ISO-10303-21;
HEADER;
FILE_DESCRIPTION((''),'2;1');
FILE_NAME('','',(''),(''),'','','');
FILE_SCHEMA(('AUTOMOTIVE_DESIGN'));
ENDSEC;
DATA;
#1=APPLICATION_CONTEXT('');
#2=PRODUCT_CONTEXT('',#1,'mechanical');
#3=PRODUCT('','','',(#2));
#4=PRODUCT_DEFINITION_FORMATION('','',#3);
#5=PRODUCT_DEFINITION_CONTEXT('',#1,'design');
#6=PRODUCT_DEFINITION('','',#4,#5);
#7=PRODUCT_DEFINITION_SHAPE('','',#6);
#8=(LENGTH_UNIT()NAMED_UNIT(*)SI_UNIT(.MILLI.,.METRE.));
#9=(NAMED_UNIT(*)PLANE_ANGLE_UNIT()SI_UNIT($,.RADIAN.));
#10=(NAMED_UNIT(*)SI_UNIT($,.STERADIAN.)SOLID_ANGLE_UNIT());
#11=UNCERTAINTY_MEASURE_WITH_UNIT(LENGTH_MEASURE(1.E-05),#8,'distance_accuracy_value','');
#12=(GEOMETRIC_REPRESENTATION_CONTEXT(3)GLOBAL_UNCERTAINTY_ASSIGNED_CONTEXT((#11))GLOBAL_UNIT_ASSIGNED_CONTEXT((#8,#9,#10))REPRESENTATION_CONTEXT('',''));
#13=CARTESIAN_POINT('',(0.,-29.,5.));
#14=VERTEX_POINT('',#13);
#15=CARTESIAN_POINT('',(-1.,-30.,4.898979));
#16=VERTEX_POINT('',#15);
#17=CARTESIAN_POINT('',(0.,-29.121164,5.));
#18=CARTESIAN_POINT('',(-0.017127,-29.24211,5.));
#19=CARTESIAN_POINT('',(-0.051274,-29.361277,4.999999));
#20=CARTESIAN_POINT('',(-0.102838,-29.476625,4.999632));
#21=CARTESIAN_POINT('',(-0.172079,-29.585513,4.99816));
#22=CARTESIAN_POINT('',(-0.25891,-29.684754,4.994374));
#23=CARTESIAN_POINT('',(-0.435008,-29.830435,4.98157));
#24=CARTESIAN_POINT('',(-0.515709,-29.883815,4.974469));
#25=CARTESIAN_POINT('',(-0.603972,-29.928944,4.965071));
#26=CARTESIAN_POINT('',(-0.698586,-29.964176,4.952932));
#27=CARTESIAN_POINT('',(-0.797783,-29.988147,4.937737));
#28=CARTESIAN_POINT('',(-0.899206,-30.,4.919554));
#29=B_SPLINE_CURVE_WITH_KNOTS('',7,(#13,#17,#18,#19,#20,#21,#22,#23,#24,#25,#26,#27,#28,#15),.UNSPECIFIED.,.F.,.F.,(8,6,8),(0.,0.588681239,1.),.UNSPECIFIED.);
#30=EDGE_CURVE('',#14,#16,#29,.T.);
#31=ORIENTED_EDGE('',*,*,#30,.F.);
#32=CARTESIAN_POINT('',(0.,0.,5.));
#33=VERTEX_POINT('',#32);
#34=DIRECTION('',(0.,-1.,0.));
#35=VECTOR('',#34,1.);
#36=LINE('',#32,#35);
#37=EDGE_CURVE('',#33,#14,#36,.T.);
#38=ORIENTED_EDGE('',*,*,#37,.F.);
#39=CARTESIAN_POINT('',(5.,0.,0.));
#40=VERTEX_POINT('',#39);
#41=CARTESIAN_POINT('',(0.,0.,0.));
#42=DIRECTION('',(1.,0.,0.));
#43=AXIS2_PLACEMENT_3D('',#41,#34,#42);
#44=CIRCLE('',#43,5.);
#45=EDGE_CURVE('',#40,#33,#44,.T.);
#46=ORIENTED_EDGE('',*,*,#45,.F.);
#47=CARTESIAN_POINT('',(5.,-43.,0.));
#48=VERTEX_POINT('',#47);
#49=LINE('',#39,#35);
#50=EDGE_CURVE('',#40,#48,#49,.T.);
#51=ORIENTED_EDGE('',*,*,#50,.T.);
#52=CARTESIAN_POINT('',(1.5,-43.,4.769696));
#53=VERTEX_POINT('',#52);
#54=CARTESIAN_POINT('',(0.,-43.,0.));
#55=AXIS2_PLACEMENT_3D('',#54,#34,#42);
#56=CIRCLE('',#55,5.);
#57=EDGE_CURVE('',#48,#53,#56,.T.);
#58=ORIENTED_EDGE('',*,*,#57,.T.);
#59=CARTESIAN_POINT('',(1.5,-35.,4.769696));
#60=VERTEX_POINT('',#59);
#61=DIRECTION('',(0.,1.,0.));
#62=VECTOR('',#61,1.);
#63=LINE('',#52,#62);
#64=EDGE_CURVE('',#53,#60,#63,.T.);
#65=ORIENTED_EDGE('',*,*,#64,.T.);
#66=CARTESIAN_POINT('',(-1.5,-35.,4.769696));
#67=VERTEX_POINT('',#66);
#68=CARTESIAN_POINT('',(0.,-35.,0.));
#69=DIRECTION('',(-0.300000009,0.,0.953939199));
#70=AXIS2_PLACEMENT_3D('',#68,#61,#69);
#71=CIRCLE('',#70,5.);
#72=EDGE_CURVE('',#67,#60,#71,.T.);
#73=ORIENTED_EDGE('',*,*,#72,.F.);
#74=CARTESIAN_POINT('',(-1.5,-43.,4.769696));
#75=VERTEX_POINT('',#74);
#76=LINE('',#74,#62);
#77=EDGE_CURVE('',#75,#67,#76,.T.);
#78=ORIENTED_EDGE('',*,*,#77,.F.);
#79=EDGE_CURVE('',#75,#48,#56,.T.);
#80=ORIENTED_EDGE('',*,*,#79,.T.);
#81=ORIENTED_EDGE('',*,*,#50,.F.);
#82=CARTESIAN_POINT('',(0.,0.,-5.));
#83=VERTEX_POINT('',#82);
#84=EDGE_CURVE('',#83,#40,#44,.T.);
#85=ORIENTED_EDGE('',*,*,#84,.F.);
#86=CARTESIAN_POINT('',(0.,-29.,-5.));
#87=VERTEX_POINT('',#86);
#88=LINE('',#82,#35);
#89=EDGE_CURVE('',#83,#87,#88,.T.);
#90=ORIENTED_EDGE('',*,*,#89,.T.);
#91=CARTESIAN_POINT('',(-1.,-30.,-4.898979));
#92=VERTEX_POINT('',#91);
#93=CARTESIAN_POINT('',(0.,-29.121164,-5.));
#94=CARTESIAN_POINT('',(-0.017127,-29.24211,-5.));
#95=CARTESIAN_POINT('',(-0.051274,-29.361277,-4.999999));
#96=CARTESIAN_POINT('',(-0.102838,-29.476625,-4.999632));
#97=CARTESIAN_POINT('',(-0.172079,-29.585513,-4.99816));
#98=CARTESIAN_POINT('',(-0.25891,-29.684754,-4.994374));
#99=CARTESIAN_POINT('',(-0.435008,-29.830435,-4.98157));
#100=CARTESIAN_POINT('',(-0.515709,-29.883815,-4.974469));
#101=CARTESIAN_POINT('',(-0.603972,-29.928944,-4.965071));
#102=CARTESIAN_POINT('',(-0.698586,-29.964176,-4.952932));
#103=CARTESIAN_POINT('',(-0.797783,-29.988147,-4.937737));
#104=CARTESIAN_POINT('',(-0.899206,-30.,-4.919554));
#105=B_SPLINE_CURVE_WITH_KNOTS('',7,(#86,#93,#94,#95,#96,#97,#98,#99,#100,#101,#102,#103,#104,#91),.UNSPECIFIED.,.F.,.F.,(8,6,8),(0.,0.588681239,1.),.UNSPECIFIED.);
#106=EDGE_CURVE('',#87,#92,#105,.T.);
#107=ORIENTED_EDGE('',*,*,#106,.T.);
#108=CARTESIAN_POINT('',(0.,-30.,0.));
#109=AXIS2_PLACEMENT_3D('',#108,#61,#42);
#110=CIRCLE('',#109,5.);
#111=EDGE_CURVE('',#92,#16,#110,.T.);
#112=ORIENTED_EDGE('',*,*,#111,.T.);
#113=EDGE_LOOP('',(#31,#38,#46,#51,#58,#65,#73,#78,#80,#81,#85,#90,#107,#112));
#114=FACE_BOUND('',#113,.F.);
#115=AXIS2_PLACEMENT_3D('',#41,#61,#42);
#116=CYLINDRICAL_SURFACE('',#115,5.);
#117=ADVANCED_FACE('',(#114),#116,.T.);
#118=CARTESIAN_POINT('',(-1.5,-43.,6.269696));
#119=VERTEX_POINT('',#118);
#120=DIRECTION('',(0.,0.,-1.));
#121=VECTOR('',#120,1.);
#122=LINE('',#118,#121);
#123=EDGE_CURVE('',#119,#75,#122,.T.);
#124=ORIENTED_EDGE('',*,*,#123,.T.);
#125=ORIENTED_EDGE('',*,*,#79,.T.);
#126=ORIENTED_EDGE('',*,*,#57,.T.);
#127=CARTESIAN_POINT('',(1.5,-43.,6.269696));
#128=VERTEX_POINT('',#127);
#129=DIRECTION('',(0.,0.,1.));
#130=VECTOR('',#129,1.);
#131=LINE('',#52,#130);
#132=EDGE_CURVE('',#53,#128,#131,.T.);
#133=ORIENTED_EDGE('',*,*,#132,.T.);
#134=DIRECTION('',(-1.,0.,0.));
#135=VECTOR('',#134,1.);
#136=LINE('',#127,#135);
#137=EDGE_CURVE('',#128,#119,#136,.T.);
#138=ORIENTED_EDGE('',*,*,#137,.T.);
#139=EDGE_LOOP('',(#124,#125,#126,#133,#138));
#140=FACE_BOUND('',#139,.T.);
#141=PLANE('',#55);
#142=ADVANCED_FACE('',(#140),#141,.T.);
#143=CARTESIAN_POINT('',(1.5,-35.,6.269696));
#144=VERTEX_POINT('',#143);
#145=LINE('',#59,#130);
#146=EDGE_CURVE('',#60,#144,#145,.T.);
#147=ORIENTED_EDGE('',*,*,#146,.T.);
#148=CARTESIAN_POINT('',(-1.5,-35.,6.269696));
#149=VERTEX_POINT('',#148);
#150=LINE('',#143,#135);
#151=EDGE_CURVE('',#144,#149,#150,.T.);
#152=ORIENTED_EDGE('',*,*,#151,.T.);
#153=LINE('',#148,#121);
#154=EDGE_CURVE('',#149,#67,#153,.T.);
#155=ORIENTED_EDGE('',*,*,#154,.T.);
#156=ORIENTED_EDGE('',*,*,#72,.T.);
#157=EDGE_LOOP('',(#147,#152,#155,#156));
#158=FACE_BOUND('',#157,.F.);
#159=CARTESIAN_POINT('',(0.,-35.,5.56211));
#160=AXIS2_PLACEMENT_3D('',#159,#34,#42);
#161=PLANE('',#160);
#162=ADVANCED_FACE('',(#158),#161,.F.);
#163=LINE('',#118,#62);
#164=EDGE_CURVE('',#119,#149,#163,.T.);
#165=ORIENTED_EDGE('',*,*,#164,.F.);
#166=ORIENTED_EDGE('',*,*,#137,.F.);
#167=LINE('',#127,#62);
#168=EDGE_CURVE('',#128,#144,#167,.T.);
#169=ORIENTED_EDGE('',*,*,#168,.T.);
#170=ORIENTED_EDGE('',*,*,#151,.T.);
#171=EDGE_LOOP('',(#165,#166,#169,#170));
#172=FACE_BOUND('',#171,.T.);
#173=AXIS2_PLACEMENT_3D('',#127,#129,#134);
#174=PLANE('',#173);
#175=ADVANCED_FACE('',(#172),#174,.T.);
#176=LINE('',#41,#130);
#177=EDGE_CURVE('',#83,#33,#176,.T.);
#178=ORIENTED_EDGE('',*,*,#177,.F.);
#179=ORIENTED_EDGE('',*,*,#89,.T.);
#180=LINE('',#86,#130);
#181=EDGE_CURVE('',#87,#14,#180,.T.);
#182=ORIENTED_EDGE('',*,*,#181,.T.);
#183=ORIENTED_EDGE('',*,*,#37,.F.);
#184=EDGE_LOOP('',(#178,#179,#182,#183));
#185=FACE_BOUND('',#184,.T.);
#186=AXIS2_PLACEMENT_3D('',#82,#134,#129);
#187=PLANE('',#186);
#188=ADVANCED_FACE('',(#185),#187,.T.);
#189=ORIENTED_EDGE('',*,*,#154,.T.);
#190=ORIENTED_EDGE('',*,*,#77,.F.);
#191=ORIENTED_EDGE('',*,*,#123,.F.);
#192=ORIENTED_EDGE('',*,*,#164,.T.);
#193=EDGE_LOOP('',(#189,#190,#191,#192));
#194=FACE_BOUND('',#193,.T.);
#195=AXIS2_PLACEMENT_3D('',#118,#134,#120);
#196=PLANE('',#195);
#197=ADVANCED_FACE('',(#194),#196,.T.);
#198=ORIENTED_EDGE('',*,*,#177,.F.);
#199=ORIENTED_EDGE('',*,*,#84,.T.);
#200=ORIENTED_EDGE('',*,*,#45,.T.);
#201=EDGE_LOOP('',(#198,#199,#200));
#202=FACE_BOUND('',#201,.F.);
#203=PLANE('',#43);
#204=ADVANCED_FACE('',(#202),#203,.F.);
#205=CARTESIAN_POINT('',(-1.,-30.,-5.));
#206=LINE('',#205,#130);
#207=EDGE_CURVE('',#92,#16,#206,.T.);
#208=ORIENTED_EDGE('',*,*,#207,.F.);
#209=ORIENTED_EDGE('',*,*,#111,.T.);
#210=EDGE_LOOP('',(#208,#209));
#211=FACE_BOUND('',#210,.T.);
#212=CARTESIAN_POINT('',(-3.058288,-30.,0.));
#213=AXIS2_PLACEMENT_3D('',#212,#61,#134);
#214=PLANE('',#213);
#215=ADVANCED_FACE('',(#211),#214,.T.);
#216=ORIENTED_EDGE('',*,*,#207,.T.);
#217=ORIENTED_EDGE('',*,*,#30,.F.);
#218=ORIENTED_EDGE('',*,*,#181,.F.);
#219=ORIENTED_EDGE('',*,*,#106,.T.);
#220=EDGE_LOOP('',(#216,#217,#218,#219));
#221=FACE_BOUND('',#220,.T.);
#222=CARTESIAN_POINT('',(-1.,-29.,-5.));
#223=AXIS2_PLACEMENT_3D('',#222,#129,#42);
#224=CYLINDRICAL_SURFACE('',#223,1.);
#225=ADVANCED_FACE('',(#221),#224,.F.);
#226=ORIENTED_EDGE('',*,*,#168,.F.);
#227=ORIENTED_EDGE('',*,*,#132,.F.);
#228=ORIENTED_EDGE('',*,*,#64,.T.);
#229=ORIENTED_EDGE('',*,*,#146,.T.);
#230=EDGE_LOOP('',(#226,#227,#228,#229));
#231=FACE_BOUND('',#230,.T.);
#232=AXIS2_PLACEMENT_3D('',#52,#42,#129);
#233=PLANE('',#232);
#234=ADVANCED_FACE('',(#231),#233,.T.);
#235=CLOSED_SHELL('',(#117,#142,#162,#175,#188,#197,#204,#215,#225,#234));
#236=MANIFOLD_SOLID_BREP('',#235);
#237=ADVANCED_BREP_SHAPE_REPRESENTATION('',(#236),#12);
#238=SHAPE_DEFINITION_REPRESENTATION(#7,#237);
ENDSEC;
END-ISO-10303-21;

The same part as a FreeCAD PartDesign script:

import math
import FreeCAD as App
import Part
import Sketcher

V = App.Vector


def edges_at(feature, points):
    """Names of the edges that pass closest to the given points."""
    edges = feature.Shape.Edges
    near = lambda p: min(range(len(edges)), key=lambda i: edges[i].distToShape(Part.Vertex(*p))[0])
    return sorted({f"Edge{near(p) + 1}" for p in points})

doc = App.newDocument("Part")
params = doc.addObject("Spreadsheet::Sheet", "Params")
for row, (alias, value) in enumerate([
    ("sketch1_diameter", "10 mm"),
    ("pad1_length", "43 mm"),
    ("sketch2_radius", "5 mm"),
    ("sketch2_width", "3 mm"),
    ("sketch2_height", "1.5 mm"),
    ("pad2_length", "8 mm"),
    ("sketch3_height", "10 mm"),
    ("pocket1_length", "30 mm"),
    ("fillet_radius", "1 mm"),
], start=1):
    params.set(f"A{row}", alias)
    params.set(f"B{row}", "=" + value)
    params.setAlias(f"B{row}", alias)

body = doc.addObject("PartDesign::Body", "Body")

# Sketch on XZ plane
sketch1 = body.newObject("Sketcher::SketchObject", "Sketch")
sketch1.AttachmentSupport = (doc.getObject("XZ_Plane"), [""])
sketch1.MapMode = "FlatFace"
sketch1.addGeometry(Part.Circle(V(0, 0, 0), V(0, 0, 1), 5), False)
sketch1.addConstraint([
    Sketcher.Constraint("Coincident", 0, 3, -1, 1),
    Sketcher.Constraint("Diameter", 0, 10.0),
])
sketch1.setExpression("Constraints[1]", "Params.sketch1_diameter")
pad1 = body.newObject("PartDesign::Pad", "Pad")
pad1.Profile = sketch1
pad1.setExpression("Length", "Params.pad1_length")

# Sketch on XZ plane
sketch2 = body.newObject("Sketcher::SketchObject", "Sketch001")
sketch2.AttachmentSupport = (doc.getObject("XZ_Plane"), [""])
sketch2.MapMode = "FlatFace"
sketch2.AttachmentOffset = App.Placement(V(0, 0, 43), App.Rotation())
sketch2.addGeometry([
    Part.LineSegment(V(-1.5, 6.3, 0), V(-1.5, 4.8, 0)),
    Part.ArcOfCircle(Part.Circle(V(0, 0, 0), V(0, 0, 1), 5), math.radians(73), math.radians(107)),
    Part.LineSegment(V(1.5, 4.8, 0), V(1.5, 6.3, 0)),
    Part.LineSegment(V(1.5, 6.3, 0), V(-1.5, 6.3, 0)),
], False)
sketch2.addConstraint([
    Sketcher.Constraint("Coincident", 0, 2, 1, 2),
    Sketcher.Constraint("Coincident", 1, 1, 2, 1),
    Sketcher.Constraint("Coincident", 2, 2, 3, 1),
    Sketcher.Constraint("Coincident", 3, 2, 0, 1),
    Sketcher.Constraint("Vertical", 0),
    Sketcher.Constraint("Vertical", 2),
    Sketcher.Constraint("Horizontal", 3),
    Sketcher.Constraint("Coincident", 1, 3, -1, 1),
    Sketcher.Constraint("Horizontal", 0, 2, 1, 1),
    Sketcher.Constraint("Radius", 1, 5.0),
    Sketcher.Constraint("DistanceX", 3, 2, 3, 1, 3.0),
    Sketcher.Constraint("DistanceY", 0, 2, 0, 1, 1.5),
])
sketch2.setExpression("Constraints[9]", "Params.sketch2_radius")
sketch2.setExpression("Constraints[10]", "Params.sketch2_width")
sketch2.setExpression("Constraints[11]", "Params.sketch2_height")
pad2 = body.newObject("PartDesign::Pad", "Pad001")
pad2.Profile = sketch2
pad2.setExpression("Length", "Params.pad2_length")
pad2.Reversed = True

# Sketch on XZ plane
sketch3 = body.newObject("Sketcher::SketchObject", "Sketch002")
sketch3.AttachmentSupport = (doc.getObject("XZ_Plane"), [""])
sketch3.MapMode = "FlatFace"
sketch3.addGeometry([
    Part.LineSegment(V(0, 5, 0), V(0, -5, 0)),
    Part.LineSegment(V(0, -5, 0), V(-6, -5, 0)),
    Part.LineSegment(V(-6, -5, 0), V(-6, 5, 0)),
    Part.LineSegment(V(-6, 5, 0), V(0, 5, 0)),
], False)
sketch3.addConstraint([
    Sketcher.Constraint("Coincident", 0, 2, 1, 1),
    Sketcher.Constraint("Coincident", 1, 2, 2, 1),
    Sketcher.Constraint("Coincident", 2, 2, 3, 1),
    Sketcher.Constraint("Coincident", 3, 2, 0, 1),
    Sketcher.Constraint("Vertical", 0),
    Sketcher.Constraint("Horizontal", 1),
    Sketcher.Constraint("Vertical", 2),
    Sketcher.Constraint("Horizontal", 3),
    Sketcher.Constraint("Symmetric", 0, 2, 3, 2, -1, 1),
    Sketcher.Constraint("DistanceY", 0, 2, 0, 1, 10.0),
    Sketcher.Constraint("DistanceX", 1, 2, 1, 1, 6.116576),
])
sketch3.setExpression("Constraints[9]", "Params.sketch3_height")
pocket1 = body.newObject("PartDesign::Pocket", "Pocket")
pocket1.Profile = sketch3
pocket1.setExpression("Length", "Params.pocket1_length")
pocket1.Reversed = True
doc.recompute()

fillet = body.newObject("PartDesign::Fillet", "Fillet")
fillet.Base = (pocket1, edges_at(pocket1, [(0, -30, 0)]))
fillet.setExpression("Radius", "Params.fillet_radius")

doc.recompute()
